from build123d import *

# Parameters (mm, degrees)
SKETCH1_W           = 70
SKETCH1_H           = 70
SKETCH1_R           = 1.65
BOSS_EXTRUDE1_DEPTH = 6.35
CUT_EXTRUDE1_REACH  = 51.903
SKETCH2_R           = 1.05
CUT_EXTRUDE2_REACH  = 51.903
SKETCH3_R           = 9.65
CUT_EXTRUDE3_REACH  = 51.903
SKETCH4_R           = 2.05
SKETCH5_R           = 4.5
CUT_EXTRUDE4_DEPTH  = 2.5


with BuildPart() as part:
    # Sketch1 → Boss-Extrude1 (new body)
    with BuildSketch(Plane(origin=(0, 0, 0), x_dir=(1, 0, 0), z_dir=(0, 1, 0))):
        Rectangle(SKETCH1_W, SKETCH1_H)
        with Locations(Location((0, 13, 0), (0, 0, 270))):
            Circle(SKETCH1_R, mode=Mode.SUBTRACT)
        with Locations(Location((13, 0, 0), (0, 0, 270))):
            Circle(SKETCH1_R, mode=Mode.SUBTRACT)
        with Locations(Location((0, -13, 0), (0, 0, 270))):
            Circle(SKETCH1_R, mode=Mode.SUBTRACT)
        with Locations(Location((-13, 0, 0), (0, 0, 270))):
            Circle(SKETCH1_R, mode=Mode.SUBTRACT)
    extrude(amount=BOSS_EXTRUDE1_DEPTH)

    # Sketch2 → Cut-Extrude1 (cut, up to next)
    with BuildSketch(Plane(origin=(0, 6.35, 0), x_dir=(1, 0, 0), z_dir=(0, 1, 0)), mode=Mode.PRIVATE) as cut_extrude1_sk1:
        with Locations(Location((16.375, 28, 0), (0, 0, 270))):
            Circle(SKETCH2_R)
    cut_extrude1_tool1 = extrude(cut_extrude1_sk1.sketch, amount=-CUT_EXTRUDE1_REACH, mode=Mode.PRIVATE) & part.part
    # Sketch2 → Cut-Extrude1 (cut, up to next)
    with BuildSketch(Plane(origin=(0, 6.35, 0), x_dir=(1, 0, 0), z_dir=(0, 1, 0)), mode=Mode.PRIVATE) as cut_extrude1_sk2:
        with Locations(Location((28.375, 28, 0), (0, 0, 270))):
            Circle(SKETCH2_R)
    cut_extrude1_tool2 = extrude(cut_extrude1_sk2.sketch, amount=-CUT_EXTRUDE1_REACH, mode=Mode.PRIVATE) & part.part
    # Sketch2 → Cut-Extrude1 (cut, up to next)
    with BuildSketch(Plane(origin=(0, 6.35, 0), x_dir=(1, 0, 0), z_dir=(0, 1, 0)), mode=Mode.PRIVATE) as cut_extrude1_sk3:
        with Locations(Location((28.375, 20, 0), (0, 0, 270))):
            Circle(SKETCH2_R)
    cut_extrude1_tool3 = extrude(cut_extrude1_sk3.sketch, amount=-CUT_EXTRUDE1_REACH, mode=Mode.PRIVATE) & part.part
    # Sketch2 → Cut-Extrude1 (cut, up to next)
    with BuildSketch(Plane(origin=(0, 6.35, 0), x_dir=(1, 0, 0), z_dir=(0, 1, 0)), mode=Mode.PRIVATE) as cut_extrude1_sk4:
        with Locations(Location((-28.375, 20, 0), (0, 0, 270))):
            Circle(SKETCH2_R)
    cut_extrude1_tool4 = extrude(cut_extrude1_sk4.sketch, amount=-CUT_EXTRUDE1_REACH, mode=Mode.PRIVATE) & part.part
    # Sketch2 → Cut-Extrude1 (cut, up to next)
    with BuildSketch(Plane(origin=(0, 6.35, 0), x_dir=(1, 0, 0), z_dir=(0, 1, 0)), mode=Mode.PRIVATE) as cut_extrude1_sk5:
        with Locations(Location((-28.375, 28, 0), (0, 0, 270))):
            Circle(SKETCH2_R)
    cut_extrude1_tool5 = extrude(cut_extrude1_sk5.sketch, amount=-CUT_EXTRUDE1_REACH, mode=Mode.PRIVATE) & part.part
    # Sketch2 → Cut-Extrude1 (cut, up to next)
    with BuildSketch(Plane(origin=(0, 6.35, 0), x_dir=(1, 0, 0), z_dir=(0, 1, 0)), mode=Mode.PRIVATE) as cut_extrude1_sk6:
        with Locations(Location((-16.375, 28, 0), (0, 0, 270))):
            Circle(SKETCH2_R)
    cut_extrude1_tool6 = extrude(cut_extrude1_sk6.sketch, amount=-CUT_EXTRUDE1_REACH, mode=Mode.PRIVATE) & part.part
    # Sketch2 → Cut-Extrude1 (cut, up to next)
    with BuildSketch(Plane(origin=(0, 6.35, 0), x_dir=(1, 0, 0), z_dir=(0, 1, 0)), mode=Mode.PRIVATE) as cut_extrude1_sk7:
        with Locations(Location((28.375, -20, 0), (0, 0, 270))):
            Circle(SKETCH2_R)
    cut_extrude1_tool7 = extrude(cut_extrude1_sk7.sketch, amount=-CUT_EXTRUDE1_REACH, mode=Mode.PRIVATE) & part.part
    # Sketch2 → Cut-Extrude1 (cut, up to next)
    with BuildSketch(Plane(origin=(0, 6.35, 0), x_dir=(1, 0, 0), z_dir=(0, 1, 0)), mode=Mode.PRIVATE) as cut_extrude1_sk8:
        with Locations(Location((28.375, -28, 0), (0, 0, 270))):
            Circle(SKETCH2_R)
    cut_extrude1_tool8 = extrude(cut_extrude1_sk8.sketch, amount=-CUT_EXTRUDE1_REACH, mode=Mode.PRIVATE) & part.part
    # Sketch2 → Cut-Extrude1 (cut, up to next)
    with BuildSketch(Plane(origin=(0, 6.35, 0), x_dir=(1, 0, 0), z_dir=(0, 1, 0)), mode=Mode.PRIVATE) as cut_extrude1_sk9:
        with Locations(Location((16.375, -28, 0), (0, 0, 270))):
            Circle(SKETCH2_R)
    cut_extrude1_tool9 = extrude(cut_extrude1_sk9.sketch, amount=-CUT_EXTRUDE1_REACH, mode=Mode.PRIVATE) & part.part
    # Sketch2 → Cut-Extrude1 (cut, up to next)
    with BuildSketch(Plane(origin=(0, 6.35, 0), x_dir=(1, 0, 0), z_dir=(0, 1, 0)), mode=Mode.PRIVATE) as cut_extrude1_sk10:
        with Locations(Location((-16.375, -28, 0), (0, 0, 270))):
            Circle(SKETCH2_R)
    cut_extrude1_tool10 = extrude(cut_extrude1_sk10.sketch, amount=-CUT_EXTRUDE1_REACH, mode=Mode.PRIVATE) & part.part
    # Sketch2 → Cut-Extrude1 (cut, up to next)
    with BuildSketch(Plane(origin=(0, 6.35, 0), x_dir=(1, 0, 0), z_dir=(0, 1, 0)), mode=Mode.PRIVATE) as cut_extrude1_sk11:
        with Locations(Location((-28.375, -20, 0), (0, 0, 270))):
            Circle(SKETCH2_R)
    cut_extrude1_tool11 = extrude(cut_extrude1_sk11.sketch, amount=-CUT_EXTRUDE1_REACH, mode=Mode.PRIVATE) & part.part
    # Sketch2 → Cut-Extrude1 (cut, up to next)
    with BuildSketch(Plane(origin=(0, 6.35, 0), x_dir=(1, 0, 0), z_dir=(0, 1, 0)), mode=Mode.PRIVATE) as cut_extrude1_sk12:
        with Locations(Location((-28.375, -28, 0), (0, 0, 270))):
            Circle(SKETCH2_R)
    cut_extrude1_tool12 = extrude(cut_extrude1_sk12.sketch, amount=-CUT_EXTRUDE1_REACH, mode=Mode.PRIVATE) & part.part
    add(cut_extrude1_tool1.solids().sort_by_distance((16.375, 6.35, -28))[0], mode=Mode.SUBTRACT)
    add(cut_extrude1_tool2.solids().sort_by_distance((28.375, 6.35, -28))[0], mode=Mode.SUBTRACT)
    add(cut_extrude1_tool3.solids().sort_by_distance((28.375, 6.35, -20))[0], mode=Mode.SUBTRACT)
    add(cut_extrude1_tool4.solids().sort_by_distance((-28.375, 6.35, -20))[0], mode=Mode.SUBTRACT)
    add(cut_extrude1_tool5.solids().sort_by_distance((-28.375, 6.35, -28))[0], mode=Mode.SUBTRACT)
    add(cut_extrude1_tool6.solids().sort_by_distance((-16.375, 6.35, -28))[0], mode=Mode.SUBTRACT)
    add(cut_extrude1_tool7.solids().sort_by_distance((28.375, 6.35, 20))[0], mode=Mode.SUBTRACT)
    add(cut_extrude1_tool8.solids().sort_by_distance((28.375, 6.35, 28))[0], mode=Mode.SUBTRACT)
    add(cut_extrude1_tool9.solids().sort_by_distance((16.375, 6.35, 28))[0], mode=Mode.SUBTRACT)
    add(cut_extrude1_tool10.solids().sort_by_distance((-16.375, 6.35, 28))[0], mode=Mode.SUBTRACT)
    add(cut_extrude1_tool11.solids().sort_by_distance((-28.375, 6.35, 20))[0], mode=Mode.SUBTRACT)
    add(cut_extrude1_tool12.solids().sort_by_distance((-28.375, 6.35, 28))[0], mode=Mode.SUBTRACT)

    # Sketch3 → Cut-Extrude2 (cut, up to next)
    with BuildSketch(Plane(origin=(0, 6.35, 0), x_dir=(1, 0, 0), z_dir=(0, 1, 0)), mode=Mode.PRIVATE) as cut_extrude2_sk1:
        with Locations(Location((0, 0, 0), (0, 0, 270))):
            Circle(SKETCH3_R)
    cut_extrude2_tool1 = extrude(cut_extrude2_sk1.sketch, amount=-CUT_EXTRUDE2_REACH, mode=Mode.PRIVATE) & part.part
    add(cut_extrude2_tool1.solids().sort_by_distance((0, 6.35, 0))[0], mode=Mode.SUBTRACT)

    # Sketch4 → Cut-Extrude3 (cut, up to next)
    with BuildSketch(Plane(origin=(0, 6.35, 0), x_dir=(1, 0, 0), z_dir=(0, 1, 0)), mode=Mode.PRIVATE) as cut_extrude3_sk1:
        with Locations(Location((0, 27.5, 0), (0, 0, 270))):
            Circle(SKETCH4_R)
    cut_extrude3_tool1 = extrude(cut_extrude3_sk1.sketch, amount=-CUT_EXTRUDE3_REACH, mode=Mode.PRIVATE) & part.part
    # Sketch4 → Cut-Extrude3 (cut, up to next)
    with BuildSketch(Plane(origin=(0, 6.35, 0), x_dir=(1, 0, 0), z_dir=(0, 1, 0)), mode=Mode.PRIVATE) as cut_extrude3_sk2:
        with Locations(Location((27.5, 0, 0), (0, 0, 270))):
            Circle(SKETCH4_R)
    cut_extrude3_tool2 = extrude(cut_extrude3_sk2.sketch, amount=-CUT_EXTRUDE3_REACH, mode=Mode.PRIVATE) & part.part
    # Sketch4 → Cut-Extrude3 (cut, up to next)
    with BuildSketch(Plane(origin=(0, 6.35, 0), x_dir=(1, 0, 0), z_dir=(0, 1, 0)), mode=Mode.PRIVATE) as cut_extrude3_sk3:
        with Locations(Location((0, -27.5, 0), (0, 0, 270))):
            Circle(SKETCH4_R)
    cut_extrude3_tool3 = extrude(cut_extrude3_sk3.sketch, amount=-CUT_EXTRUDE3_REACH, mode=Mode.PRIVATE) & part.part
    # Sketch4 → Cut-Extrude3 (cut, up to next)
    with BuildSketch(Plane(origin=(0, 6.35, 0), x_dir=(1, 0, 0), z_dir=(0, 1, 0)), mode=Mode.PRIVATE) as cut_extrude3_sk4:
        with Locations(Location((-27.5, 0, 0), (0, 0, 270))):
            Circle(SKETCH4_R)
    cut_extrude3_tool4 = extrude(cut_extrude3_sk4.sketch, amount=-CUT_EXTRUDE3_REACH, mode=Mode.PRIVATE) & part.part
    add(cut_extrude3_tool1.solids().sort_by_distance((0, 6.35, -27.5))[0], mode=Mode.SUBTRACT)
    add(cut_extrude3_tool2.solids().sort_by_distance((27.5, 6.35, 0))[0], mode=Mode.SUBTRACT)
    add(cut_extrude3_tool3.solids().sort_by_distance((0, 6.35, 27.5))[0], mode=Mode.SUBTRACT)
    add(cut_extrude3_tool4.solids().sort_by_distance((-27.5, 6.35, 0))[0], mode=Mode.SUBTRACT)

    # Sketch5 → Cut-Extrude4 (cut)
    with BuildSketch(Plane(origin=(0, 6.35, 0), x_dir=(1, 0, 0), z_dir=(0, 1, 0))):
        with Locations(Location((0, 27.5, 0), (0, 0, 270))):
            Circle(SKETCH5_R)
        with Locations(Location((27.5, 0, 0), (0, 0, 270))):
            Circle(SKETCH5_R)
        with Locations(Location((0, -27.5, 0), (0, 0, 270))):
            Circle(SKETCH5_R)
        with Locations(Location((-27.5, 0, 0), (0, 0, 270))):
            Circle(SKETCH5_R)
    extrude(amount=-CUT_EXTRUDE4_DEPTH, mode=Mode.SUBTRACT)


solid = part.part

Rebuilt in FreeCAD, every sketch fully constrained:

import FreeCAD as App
import Part
import Sketcher
from FreeCAD import Vector
Q = App.Units.Quantity

doc = App.newDocument("Part")
params = doc.addObject("Spreadsheet::Sheet", "Params")
for row, (alias, value) in enumerate([
    ("sketch1_diameter", "3.3 mm"),
    ("sketch1_width", "70 mm"),
    ("pad1_length", "6.35 mm"),
    ("sketch2_diameter", "2.1 mm"),
    ("sketch3_diameter", "2.1 mm"),
    ("sketch4_diameter", "2.1 mm"),
    ("sketch5_diameter", "2.1 mm"),
    ("sketch6_diameter", "2.1 mm"),
    ("sketch7_diameter", "2.1 mm"),
    ("sketch8_diameter", "2.1 mm"),
    ("sketch9_diameter", "2.1 mm"),
    ("sketch10_diameter", "2.1 mm"),
    ("sketch11_diameter", "2.1 mm"),
    ("sketch12_diameter", "2.1 mm"),
    ("sketch13_diameter", "2.1 mm"),
    ("sketch14_diameter", "19.3 mm"),
    ("sketch15_diameter", "4.1 mm"),
    ("sketch16_diameter", "4.1 mm"),
    ("sketch17_diameter", "4.1 mm"),
    ("sketch18_diameter", "4.1 mm"),
    ("sketch19_diameter", "9 mm"),
    ("pocket18_length", "2.5 mm"),
], start=1):
    params.set(f"A{row}", alias)
    params.set(f"B{row}", "=" + value)
    params.setAlias(f"B{row}", alias)

body = doc.addObject("PartDesign::Body", "Body")

# Sketch on XZ plane
sketch1 = body.newObject("Sketcher::SketchObject", "Sketch")
sketch1.AttachmentSupport = (doc.getObject("XZ_Plane"), [""])
sketch1.MapMode = "FlatFace"
sketch1.addGeometry(Part.LineSegment(Vector(-35, -35, 0), Vector(-35, 35, 0)), False)
sketch1.addGeometry(Part.LineSegment(Vector(-35, 35, 0), Vector(35, 35, 0)), False)
sketch1.addGeometry(Part.LineSegment(Vector(35, 35, 0), Vector(35, -35, 0)), False)
sketch1.addGeometry(Part.LineSegment(Vector(35, -35, 0), Vector(-35, -35, 0)), False)
sketch1.addGeometry(Part.Circle(Vector(0, 13, 0), Vector(0, 0, 1), 1.6), False)
sketch1.addGeometry(Part.Circle(Vector(-13, 0, 0), Vector(0, 0, 1), 1.6), False)
sketch1.addGeometry(Part.Circle(Vector(13, 0, 0), Vector(0, 0, 1), 1.6), False)
sketch1.addGeometry(Part.Circle(Vector(0, -13, 0), Vector(0, 0, 1), 1.6), False)
sketch1.addConstraint(Sketcher.Constraint("Coincident", 0, 2, 1, 1))
sketch1.addConstraint(Sketcher.Constraint("Coincident", 1, 2, 2, 1))
sketch1.addConstraint(Sketcher.Constraint("Coincident", 2, 2, 3, 1))
sketch1.addConstraint(Sketcher.Constraint("Coincident", 3, 2, 0, 1))
sketch1.addConstraint(Sketcher.Constraint("Vertical", 0))
sketch1.addConstraint(Sketcher.Constraint("Horizontal", 1))
sketch1.addConstraint(Sketcher.Constraint("Vertical", 2))
sketch1.addConstraint(Sketcher.Constraint("Horizontal", 3))
sketch1.addConstraint(Sketcher.Constraint("Equal", 4, 5))
sketch1.addConstraint(Sketcher.Constraint("Equal", 5, 6))
sketch1.addConstraint(Sketcher.Constraint("Equal", 6, 7))
sketch1.addConstraint(Sketcher.Constraint("Symmetric", 5, 3, 6, 3, -1, 1))
sketch1.addConstraint(Sketcher.Constraint("Symmetric", 4, 3, 7, 3, -1, 1))
sketch1.addConstraint(Sketcher.Constraint("Symmetric", 0, 2, 2, 2, -1, 1))
sketch1.addConstraint(Sketcher.Constraint("PointOnObject", 4, 3, -2))
sketch1.addConstraint(Sketcher.Constraint("PointOnObject", 5, 3, -1))
sketch1.addConstraint(Sketcher.Constraint("Equal", 3, 0))
sketch1.addConstraint(Sketcher.Constraint("Diameter", 4, Q("3.3 mm")))
sketch1.addConstraint(Sketcher.Constraint("DistanceX", 1, 1, 1, 2, Q("70 mm")))
sketch1.addConstraint(Sketcher.Constraint("DistanceY", -1, 1, 4, 3, Q("13 mm")))
sketch1.addConstraint(Sketcher.Constraint("DistanceX", 5, 3, -1, 1, Q("13 mm")))
sketch1.setExpression("Constraints[17]", "Params.sketch1_diameter")
sketch1.setExpression("Constraints[18]", "Params.sketch1_width")
pad1 = body.newObject("PartDesign::Pad", "Pad")
pad1.Profile = sketch1
pad1.setExpression("Length", "Params.pad1_length")
pad1.Reversed = True

# Sketch on XZ plane
sketch2 = body.newObject("Sketcher::SketchObject", "Sketch001")
sketch2.AttachmentSupport = (doc.getObject("XZ_Plane"), [""])
sketch2.MapMode = "FlatFace"
sketch2.AttachmentOffset = App.Placement(Vector(0, 0, -6.35), App.Rotation())
sketch2.addGeometry(Part.Circle(Vector(16.4, -28, 0), Vector(0, 0, 1), 1.1), False)
sketch2.addConstraint(Sketcher.Constraint("Diameter", 0, Q("2.1 mm")))
sketch2.addConstraint(Sketcher.Constraint("DistanceY", 0, 3, -1, 1, Q("28 mm")))
sketch2.addConstraint(Sketcher.Constraint("DistanceX", -1, 1, 0, 3, Q("16.375 mm")))
sketch2.setExpression("Constraints[0]", "Params.sketch2_diameter")
pocket1 = body.newObject("PartDesign::Pocket", "Pocket")
pocket1.Profile = sketch2
pocket1.Type = "UpToFirst"
pocket1.Reversed = True

# Sketch on XZ plane
sketch3 = body.newObject("Sketcher::SketchObject", "Sketch002")
sketch3.AttachmentSupport = (doc.getObject("XZ_Plane"), [""])
sketch3.MapMode = "FlatFace"
sketch3.AttachmentOffset = App.Placement(Vector(0, 0, -6.35), App.Rotation())
sketch3.addGeometry(Part.Circle(Vector(28.4, -28, 0), Vector(0, 0, 1), 1.1), False)
sketch3.addConstraint(Sketcher.Constraint("Diameter", 0, Q("2.1 mm")))
sketch3.addConstraint(Sketcher.Constraint("DistanceY", 0, 3, -1, 1, Q("28 mm")))
sketch3.addConstraint(Sketcher.Constraint("DistanceX", -1, 1, 0, 3, Q("28.375 mm")))
sketch3.setExpression("Constraints[0]", "Params.sketch3_diameter")
pocket2 = body.newObject("PartDesign::Pocket", "Pocket001")
pocket2.Profile = sketch3
pocket2.Type = "UpToFirst"
pocket2.Reversed = True

# Sketch on XZ plane
sketch4 = body.newObject("Sketcher::SketchObject", "Sketch003")
sketch4.AttachmentSupport = (doc.getObject("XZ_Plane"), [""])
sketch4.MapMode = "FlatFace"
sketch4.AttachmentOffset = App.Placement(Vector(0, 0, -6.35), App.Rotation())
sketch4.addGeometry(Part.Circle(Vector(28.4, -20, 0), Vector(0, 0, 1), 1.1), False)
sketch4.addConstraint(Sketcher.Constraint("Diameter", 0, Q("2.1 mm")))
sketch4.addConstraint(Sketcher.Constraint("DistanceY", 0, 3, -1, 1, Q("20 mm")))
sketch4.addConstraint(Sketcher.Constraint("DistanceX", -1, 1, 0, 3, Q("28.375 mm")))
sketch4.setExpression("Constraints[0]", "Params.sketch4_diameter")
pocket3 = body.newObject("PartDesign::Pocket", "Pocket002")
pocket3.Profile = sketch4
pocket3.Type = "UpToFirst"
pocket3.Reversed = True

# Sketch on XZ plane
sketch5 = body.newObject("Sketcher::SketchObject", "Sketch004")
sketch5.AttachmentSupport = (doc.getObject("XZ_Plane"), [""])
sketch5.MapMode = "FlatFace"
sketch5.AttachmentOffset = App.Placement(Vector(0, 0, -6.35), App.Rotation())
sketch5.addGeometry(Part.Circle(Vector(-28.4, -20, 0), Vector(0, 0, 1), 1.1), False)
sketch5.addConstraint(Sketcher.Constraint("Diameter", 0, Q("2.1 mm")))
sketch5.addConstraint(Sketcher.Constraint("DistanceY", 0, 3, -1, 1, Q("20 mm")))
sketch5.addConstraint(Sketcher.Constraint("DistanceX", 0, 3, -1, 1, Q("28.375 mm")))
sketch5.setExpression("Constraints[0]", "Params.sketch5_diameter")
pocket4 = body.newObject("PartDesign::Pocket", "Pocket003")
pocket4.Profile = sketch5
pocket4.Type = "UpToFirst"
pocket4.Reversed = True

# Sketch on XZ plane
sketch6 = body.newObject("Sketcher::SketchObject", "Sketch005")
sketch6.AttachmentSupport = (doc.getObject("XZ_Plane"), [""])
sketch6.MapMode = "FlatFace"
sketch6.AttachmentOffset = App.Placement(Vector(0, 0, -6.35), App.Rotation())
sketch6.addGeometry(Part.Circle(Vector(-28.4, -28, 0), Vector(0, 0, 1), 1.1), False)
sketch6.addConstraint(Sketcher.Constraint("Diameter", 0, Q("2.1 mm")))
sketch6.addConstraint(Sketcher.Constraint("DistanceY", 0, 3, -1, 1, Q("28 mm")))
sketch6.addConstraint(Sketcher.Constraint("DistanceX", 0, 3, -1, 1, Q("28.375 mm")))
sketch6.setExpression("Constraints[0]", "Params.sketch6_diameter")
pocket5 = body.newObject("PartDesign::Pocket", "Pocket004")
pocket5.Profile = sketch6
pocket5.Type = "UpToFirst"
pocket5.Reversed = True

# Sketch on XZ plane
sketch7 = body.newObject("Sketcher::SketchObject", "Sketch006")
sketch7.AttachmentSupport = (doc.getObject("XZ_Plane"), [""])
sketch7.MapMode = "FlatFace"
sketch7.AttachmentOffset = App.Placement(Vector(0, 0, -6.35), App.Rotation())
sketch7.addGeometry(Part.Circle(Vector(-16.4, -28, 0), Vector(0, 0, 1), 1.1), False)
sketch7.addConstraint(Sketcher.Constraint("Diameter", 0, Q("2.1 mm")))
sketch7.addConstraint(Sketcher.Constraint("DistanceY", 0, 3, -1, 1, Q("28 mm")))
sketch7.addConstraint(Sketcher.Constraint("DistanceX", 0, 3, -1, 1, Q("16.375 mm")))
sketch7.setExpression("Constraints[0]", "Params.sketch7_diameter")
pocket6 = body.newObject("PartDesign::Pocket", "Pocket005")
pocket6.Profile = sketch7
pocket6.Type = "UpToFirst"
pocket6.Reversed = True

# Sketch on XZ plane
sketch8 = body.newObject("Sketcher::SketchObject", "Sketch007")
sketch8.AttachmentSupport = (doc.getObject("XZ_Plane"), [""])
sketch8.MapMode = "FlatFace"
sketch8.AttachmentOffset = App.Placement(Vector(0, 0, -6.35), App.Rotation())
sketch8.addGeometry(Part.Circle(Vector(28.4, 20, 0), Vector(0, 0, 1), 1.1), False)
sketch8.addConstraint(Sketcher.Constraint("Diameter", 0, Q("2.1 mm")))
sketch8.addConstraint(Sketcher.Constraint("DistanceY", -1, 1, 0, 3, Q("20 mm")))
sketch8.addConstraint(Sketcher.Constraint("DistanceX", -1, 1, 0, 3, Q("28.375 mm")))
sketch8.setExpression("Constraints[0]", "Params.sketch8_diameter")
pocket7 = body.newObject("PartDesign::Pocket", "Pocket006")
pocket7.Profile = sketch8
pocket7.Type = "UpToFirst"
pocket7.Reversed = True

# Sketch on XZ plane
sketch9 = body.newObject("Sketcher::SketchObject", "Sketch008")
sketch9.AttachmentSupport = (doc.getObject("XZ_Plane"), [""])
sketch9.MapMode = "FlatFace"
sketch9.AttachmentOffset = App.Placement(Vector(0, 0, -6.35), App.Rotation())
sketch9.addGeometry(Part.Circle(Vector(28.4, 28, 0), Vector(0, 0, 1), 1.1), False)
sketch9.addConstraint(Sketcher.Constraint("Diameter", 0, Q("2.1 mm")))
sketch9.addConstraint(Sketcher.Constraint("DistanceY", -1, 1, 0, 3, Q("28 mm")))
sketch9.addConstraint(Sketcher.Constraint("DistanceX", -1, 1, 0, 3, Q("28.375 mm")))
sketch9.setExpression("Constraints[0]", "Params.sketch9_diameter")
pocket8 = body.newObject("PartDesign::Pocket", "Pocket007")
pocket8.Profile = sketch9
pocket8.Type = "UpToFirst"
pocket8.Reversed = True

# Sketch on XZ plane
sketch10 = body.newObject("Sketcher::SketchObject", "Sketch009")
sketch10.AttachmentSupport = (doc.getObject("XZ_Plane"), [""])
sketch10.MapMode = "FlatFace"
sketch10.AttachmentOffset = App.Placement(Vector(0, 0, -6.35), App.Rotation())
sketch10.addGeometry(Part.Circle(Vector(16.4, 28, 0), Vector(0, 0, 1), 1.1), False)
sketch10.addConstraint(Sketcher.Constraint("Diameter", 0, Q("2.1 mm")))
sketch10.addConstraint(Sketcher.Constraint("DistanceY", -1, 1, 0, 3, Q("28 mm")))
sketch10.addConstraint(Sketcher.Constraint("DistanceX", -1, 1, 0, 3, Q("16.375 mm")))
sketch10.setExpression("Constraints[0]", "Params.sketch10_diameter")
pocket9 = body.newObject("PartDesign::Pocket", "Pocket008")
pocket9.Profile = sketch10
pocket9.Type = "UpToFirst"
pocket9.Reversed = True

# Sketch on XZ plane
sketch11 = body.newObject("Sketcher::SketchObject", "Sketch010")
sketch11.AttachmentSupport = (doc.getObject("XZ_Plane"), [""])
sketch11.MapMode = "FlatFace"
sketch11.AttachmentOffset = App.Placement(Vector(0, 0, -6.35), App.Rotation())
sketch11.addGeometry(Part.Circle(Vector(-16.4, 28, 0), Vector(0, 0, 1), 1.1), False)
sketch11.addConstraint(Sketcher.Constraint("Diameter", 0, Q("2.1 mm")))
sketch11.addConstraint(Sketcher.Constraint("DistanceY", -1, 1, 0, 3, Q("28 mm")))
sketch11.addConstraint(Sketcher.Constraint("DistanceX", 0, 3, -1, 1, Q("16.375 mm")))
sketch11.setExpression("Constraints[0]", "Params.sketch11_diameter")
pocket10 = body.newObject("PartDesign::Pocket", "Pocket009")
pocket10.Profile = sketch11
pocket10.Type = "UpToFirst"
pocket10.Reversed = True

# Sketch on XZ plane
sketch12 = body.newObject("Sketcher::SketchObject", "Sketch011")
sketch12.AttachmentSupport = (doc.getObject("XZ_Plane"), [""])
sketch12.MapMode = "FlatFace"
sketch12.AttachmentOffset = App.Placement(Vector(0, 0, -6.35), App.Rotation())
sketch12.addGeometry(Part.Circle(Vector(-28.4, 20, 0), Vector(0, 0, 1), 1.1), False)
sketch12.addConstraint(Sketcher.Constraint("Diameter", 0, Q("2.1 mm")))
sketch12.addConstraint(Sketcher.Constraint("DistanceY", -1, 1, 0, 3, Q("20 mm")))
sketch12.addConstraint(Sketcher.Constraint("DistanceX", 0, 3, -1, 1, Q("28.375 mm")))
sketch12.setExpression("Constraints[0]", "Params.sketch12_diameter")
pocket11 = body.newObject("PartDesign::Pocket", "Pocket010")
pocket11.Profile = sketch12
pocket11.Type = "UpToFirst"
pocket11.Reversed = True

# Sketch on XZ plane
sketch13 = body.newObject("Sketcher::SketchObject", "Sketch012")
sketch13.AttachmentSupport = (doc.getObject("XZ_Plane"), [""])
sketch13.MapMode = "FlatFace"
sketch13.AttachmentOffset = App.Placement(Vector(0, 0, -6.35), App.Rotation())
sketch13.addGeometry(Part.Circle(Vector(-28.4, 28, 0), Vector(0, 0, 1), 1.1), False)
sketch13.addConstraint(Sketcher.Constraint("Diameter", 0, Q("2.1 mm")))
sketch13.addConstraint(Sketcher.Constraint("DistanceY", -1, 1, 0, 3, Q("28 mm")))
sketch13.addConstraint(Sketcher.Constraint("DistanceX", 0, 3, -1, 1, Q("28.375 mm")))
sketch13.setExpression("Constraints[0]", "Params.sketch13_diameter")
pocket12 = body.newObject("PartDesign::Pocket", "Pocket011")
pocket12.Profile = sketch13
pocket12.Type = "UpToFirst"
pocket12.Reversed = True

# Sketch on XZ plane
sketch14 = body.newObject("Sketcher::SketchObject", "Sketch013")
sketch14.AttachmentSupport = (doc.getObject("XZ_Plane"), [""])
sketch14.MapMode = "FlatFace"
sketch14.AttachmentOffset = App.Placement(Vector(0, 0, -6.35), App.Rotation())
sketch14.addGeometry(Part.Circle(Vector(0, 0, 0), Vector(0, 0, 1), 10), False)
sketch14.addConstraint(Sketcher.Constraint("Coincident", 0, 3, -1, 1))
sketch14.addConstraint(Sketcher.Constraint("Diameter", 0, Q("19.3 mm")))
sketch14.setExpression("Constraints[1]", "Params.sketch14_diameter")
pocket13 = body.newObject("PartDesign::Pocket", "Pocket012")
pocket13.Profile = sketch14
pocket13.Type = "UpToFirst"
pocket13.Reversed = True

# Sketch on XZ plane
sketch15 = body.newObject("Sketcher::SketchObject", "Sketch014")
sketch15.AttachmentSupport = (doc.getObject("XZ_Plane"), [""])
sketch15.MapMode = "FlatFace"
sketch15.AttachmentOffset = App.Placement(Vector(0, 0, -6.35), App.Rotation())
sketch15.addGeometry(Part.Circle(Vector(0, -27.5, 0), Vector(0, 0, 1), 2), False)
sketch15.addConstraint(Sketcher.Constraint("PointOnObject", 0, 3, -2))
sketch15.addConstraint(Sketcher.Constraint("Diameter", 0, Q("4.1 mm")))
sketch15.addConstraint(Sketcher.Constraint("DistanceY", 0, 3, -1, 1, Q("27.5 mm")))
sketch15.setExpression("Constraints[1]", "Params.sketch15_diameter")
pocket14 = body.newObject("PartDesign::Pocket", "Pocket013")
pocket14.Profile = sketch15
pocket14.Type = "UpToFirst"
pocket14.Reversed = True

# Sketch on XZ plane
sketch16 = body.newObject("Sketcher::SketchObject", "Sketch015")
sketch16.AttachmentSupport = (doc.getObject("XZ_Plane"), [""])
sketch16.MapMode = "FlatFace"
sketch16.AttachmentOffset = App.Placement(Vector(0, 0, -6.35), App.Rotation())
sketch16.addGeometry(Part.Circle(Vector(27.5, 0, 0), Vector(0, 0, 1), 2), False)
sketch16.addConstraint(Sketcher.Constraint("PointOnObject", 0, 3, -1))
sketch16.addConstraint(Sketcher.Constraint("Diameter", 0, Q("4.1 mm")))
sketch16.addConstraint(Sketcher.Constraint("DistanceX", -1, 1, 0, 3, Q("27.5 mm")))
sketch16.setExpression("Constraints[1]", "Params.sketch16_diameter")
pocket15 = body.newObject("PartDesign::Pocket", "Pocket014")
pocket15.Profile = sketch16
pocket15.Type = "UpToFirst"
pocket15.Reversed = True

# Sketch on XZ plane
sketch17 = body.newObject("Sketcher::SketchObject", "Sketch016")
sketch17.AttachmentSupport = (doc.getObject("XZ_Plane"), [""])
sketch17.MapMode = "FlatFace"
sketch17.AttachmentOffset = App.Placement(Vector(0, 0, -6.35), App.Rotation())
sketch17.addGeometry(Part.Circle(Vector(0, 27.5, 0), Vector(0, 0, 1), 2), False)
sketch17.addConstraint(Sketcher.Constraint("PointOnObject", 0, 3, -2))
sketch17.addConstraint(Sketcher.Constraint("Diameter", 0, Q("4.1 mm")))
sketch17.addConstraint(Sketcher.Constraint("DistanceY", -1, 1, 0, 3, Q("27.5 mm")))
sketch17.setExpression("Constraints[1]", "Params.sketch17_diameter")
pocket16 = body.newObject("PartDesign::Pocket", "Pocket015")
pocket16.Profile = sketch17
pocket16.Type = "UpToFirst"
pocket16.Reversed = True

# Sketch on XZ plane
sketch18 = body.newObject("Sketcher::SketchObject", "Sketch017")
sketch18.AttachmentSupport = (doc.getObject("XZ_Plane"), [""])
sketch18.MapMode = "FlatFace"
sketch18.AttachmentOffset = App.Placement(Vector(0, 0, -6.35), App.Rotation())
sketch18.addGeometry(Part.Circle(Vector(-27.5, 0, 0), Vector(0, 0, 1), 2), False)
sketch18.addConstraint(Sketcher.Constraint("PointOnObject", 0, 3, -1))
sketch18.addConstraint(Sketcher.Constraint("Diameter", 0, Q("4.1 mm")))
sketch18.addConstraint(Sketcher.Constraint("DistanceX", 0, 3, -1, 1, Q("27.5 mm")))
sketch18.setExpression("Constraints[1]", "Params.sketch18_diameter")
pocket17 = body.newObject("PartDesign::Pocket", "Pocket016")
pocket17.Profile = sketch18
pocket17.Type = "UpToFirst"
pocket17.Reversed = True

# Sketch on XZ plane
sketch19 = body.newObject("Sketcher::SketchObject", "Sketch018")
sketch19.AttachmentSupport = (doc.getObject("XZ_Plane"), [""])
sketch19.MapMode = "FlatFace"
sketch19.AttachmentOffset = App.Placement(Vector(0, 0, -6.35), App.Rotation())
sketch19.addGeometry(Part.Circle(Vector(0, -27.5, 0), Vector(0, 0, 1), 4.5), False)
sketch19.addGeometry(Part.Circle(Vector(27.5, 0, 0), Vector(0, 0, 1), 4.5), False)
sketch19.addGeometry(Part.Circle(Vector(0, 27.5, 0), Vector(0, 0, 1), 4.5), False)
sketch19.addGeometry(Part.Circle(Vector(-27.5, 0, 0), Vector(0, 0, 1), 4.5), False)
sketch19.addConstraint(Sketcher.Constraint("Equal", 0, 1))
sketch19.addConstraint(Sketcher.Constraint("Equal", 1, 2))
sketch19.addConstraint(Sketcher.Constraint("Equal", 2, 3))
sketch19.addConstraint(Sketcher.Constraint("Symmetric", 0, 3, 2, 3, -1, 1))
sketch19.addConstraint(Sketcher.Constraint("Symmetric", 1, 3, 3, 3, -1, 1))
sketch19.addConstraint(Sketcher.Constraint("PointOnObject", 0, 3, -2))
sketch19.addConstraint(Sketcher.Constraint("PointOnObject", 1, 3, -1))
sketch19.addConstraint(Sketcher.Constraint("Diameter", 0, Q("9 mm")))
sketch19.addConstraint(Sketcher.Constraint("DistanceY", 0, 3, 2, 3, Q("55 mm")))
sketch19.addConstraint(Sketcher.Constraint("DistanceX", 3, 3, 1, 3, Q("55 mm")))
sketch19.setExpression("Constraints[7]", "Params.sketch19_diameter")
pocket18 = body.newObject("PartDesign::Pocket", "Pocket017")
pocket18.Profile = sketch19
pocket18.setExpression("Length", "Params.pocket18_length")
pocket18.Reversed = True

doc.recompute()
